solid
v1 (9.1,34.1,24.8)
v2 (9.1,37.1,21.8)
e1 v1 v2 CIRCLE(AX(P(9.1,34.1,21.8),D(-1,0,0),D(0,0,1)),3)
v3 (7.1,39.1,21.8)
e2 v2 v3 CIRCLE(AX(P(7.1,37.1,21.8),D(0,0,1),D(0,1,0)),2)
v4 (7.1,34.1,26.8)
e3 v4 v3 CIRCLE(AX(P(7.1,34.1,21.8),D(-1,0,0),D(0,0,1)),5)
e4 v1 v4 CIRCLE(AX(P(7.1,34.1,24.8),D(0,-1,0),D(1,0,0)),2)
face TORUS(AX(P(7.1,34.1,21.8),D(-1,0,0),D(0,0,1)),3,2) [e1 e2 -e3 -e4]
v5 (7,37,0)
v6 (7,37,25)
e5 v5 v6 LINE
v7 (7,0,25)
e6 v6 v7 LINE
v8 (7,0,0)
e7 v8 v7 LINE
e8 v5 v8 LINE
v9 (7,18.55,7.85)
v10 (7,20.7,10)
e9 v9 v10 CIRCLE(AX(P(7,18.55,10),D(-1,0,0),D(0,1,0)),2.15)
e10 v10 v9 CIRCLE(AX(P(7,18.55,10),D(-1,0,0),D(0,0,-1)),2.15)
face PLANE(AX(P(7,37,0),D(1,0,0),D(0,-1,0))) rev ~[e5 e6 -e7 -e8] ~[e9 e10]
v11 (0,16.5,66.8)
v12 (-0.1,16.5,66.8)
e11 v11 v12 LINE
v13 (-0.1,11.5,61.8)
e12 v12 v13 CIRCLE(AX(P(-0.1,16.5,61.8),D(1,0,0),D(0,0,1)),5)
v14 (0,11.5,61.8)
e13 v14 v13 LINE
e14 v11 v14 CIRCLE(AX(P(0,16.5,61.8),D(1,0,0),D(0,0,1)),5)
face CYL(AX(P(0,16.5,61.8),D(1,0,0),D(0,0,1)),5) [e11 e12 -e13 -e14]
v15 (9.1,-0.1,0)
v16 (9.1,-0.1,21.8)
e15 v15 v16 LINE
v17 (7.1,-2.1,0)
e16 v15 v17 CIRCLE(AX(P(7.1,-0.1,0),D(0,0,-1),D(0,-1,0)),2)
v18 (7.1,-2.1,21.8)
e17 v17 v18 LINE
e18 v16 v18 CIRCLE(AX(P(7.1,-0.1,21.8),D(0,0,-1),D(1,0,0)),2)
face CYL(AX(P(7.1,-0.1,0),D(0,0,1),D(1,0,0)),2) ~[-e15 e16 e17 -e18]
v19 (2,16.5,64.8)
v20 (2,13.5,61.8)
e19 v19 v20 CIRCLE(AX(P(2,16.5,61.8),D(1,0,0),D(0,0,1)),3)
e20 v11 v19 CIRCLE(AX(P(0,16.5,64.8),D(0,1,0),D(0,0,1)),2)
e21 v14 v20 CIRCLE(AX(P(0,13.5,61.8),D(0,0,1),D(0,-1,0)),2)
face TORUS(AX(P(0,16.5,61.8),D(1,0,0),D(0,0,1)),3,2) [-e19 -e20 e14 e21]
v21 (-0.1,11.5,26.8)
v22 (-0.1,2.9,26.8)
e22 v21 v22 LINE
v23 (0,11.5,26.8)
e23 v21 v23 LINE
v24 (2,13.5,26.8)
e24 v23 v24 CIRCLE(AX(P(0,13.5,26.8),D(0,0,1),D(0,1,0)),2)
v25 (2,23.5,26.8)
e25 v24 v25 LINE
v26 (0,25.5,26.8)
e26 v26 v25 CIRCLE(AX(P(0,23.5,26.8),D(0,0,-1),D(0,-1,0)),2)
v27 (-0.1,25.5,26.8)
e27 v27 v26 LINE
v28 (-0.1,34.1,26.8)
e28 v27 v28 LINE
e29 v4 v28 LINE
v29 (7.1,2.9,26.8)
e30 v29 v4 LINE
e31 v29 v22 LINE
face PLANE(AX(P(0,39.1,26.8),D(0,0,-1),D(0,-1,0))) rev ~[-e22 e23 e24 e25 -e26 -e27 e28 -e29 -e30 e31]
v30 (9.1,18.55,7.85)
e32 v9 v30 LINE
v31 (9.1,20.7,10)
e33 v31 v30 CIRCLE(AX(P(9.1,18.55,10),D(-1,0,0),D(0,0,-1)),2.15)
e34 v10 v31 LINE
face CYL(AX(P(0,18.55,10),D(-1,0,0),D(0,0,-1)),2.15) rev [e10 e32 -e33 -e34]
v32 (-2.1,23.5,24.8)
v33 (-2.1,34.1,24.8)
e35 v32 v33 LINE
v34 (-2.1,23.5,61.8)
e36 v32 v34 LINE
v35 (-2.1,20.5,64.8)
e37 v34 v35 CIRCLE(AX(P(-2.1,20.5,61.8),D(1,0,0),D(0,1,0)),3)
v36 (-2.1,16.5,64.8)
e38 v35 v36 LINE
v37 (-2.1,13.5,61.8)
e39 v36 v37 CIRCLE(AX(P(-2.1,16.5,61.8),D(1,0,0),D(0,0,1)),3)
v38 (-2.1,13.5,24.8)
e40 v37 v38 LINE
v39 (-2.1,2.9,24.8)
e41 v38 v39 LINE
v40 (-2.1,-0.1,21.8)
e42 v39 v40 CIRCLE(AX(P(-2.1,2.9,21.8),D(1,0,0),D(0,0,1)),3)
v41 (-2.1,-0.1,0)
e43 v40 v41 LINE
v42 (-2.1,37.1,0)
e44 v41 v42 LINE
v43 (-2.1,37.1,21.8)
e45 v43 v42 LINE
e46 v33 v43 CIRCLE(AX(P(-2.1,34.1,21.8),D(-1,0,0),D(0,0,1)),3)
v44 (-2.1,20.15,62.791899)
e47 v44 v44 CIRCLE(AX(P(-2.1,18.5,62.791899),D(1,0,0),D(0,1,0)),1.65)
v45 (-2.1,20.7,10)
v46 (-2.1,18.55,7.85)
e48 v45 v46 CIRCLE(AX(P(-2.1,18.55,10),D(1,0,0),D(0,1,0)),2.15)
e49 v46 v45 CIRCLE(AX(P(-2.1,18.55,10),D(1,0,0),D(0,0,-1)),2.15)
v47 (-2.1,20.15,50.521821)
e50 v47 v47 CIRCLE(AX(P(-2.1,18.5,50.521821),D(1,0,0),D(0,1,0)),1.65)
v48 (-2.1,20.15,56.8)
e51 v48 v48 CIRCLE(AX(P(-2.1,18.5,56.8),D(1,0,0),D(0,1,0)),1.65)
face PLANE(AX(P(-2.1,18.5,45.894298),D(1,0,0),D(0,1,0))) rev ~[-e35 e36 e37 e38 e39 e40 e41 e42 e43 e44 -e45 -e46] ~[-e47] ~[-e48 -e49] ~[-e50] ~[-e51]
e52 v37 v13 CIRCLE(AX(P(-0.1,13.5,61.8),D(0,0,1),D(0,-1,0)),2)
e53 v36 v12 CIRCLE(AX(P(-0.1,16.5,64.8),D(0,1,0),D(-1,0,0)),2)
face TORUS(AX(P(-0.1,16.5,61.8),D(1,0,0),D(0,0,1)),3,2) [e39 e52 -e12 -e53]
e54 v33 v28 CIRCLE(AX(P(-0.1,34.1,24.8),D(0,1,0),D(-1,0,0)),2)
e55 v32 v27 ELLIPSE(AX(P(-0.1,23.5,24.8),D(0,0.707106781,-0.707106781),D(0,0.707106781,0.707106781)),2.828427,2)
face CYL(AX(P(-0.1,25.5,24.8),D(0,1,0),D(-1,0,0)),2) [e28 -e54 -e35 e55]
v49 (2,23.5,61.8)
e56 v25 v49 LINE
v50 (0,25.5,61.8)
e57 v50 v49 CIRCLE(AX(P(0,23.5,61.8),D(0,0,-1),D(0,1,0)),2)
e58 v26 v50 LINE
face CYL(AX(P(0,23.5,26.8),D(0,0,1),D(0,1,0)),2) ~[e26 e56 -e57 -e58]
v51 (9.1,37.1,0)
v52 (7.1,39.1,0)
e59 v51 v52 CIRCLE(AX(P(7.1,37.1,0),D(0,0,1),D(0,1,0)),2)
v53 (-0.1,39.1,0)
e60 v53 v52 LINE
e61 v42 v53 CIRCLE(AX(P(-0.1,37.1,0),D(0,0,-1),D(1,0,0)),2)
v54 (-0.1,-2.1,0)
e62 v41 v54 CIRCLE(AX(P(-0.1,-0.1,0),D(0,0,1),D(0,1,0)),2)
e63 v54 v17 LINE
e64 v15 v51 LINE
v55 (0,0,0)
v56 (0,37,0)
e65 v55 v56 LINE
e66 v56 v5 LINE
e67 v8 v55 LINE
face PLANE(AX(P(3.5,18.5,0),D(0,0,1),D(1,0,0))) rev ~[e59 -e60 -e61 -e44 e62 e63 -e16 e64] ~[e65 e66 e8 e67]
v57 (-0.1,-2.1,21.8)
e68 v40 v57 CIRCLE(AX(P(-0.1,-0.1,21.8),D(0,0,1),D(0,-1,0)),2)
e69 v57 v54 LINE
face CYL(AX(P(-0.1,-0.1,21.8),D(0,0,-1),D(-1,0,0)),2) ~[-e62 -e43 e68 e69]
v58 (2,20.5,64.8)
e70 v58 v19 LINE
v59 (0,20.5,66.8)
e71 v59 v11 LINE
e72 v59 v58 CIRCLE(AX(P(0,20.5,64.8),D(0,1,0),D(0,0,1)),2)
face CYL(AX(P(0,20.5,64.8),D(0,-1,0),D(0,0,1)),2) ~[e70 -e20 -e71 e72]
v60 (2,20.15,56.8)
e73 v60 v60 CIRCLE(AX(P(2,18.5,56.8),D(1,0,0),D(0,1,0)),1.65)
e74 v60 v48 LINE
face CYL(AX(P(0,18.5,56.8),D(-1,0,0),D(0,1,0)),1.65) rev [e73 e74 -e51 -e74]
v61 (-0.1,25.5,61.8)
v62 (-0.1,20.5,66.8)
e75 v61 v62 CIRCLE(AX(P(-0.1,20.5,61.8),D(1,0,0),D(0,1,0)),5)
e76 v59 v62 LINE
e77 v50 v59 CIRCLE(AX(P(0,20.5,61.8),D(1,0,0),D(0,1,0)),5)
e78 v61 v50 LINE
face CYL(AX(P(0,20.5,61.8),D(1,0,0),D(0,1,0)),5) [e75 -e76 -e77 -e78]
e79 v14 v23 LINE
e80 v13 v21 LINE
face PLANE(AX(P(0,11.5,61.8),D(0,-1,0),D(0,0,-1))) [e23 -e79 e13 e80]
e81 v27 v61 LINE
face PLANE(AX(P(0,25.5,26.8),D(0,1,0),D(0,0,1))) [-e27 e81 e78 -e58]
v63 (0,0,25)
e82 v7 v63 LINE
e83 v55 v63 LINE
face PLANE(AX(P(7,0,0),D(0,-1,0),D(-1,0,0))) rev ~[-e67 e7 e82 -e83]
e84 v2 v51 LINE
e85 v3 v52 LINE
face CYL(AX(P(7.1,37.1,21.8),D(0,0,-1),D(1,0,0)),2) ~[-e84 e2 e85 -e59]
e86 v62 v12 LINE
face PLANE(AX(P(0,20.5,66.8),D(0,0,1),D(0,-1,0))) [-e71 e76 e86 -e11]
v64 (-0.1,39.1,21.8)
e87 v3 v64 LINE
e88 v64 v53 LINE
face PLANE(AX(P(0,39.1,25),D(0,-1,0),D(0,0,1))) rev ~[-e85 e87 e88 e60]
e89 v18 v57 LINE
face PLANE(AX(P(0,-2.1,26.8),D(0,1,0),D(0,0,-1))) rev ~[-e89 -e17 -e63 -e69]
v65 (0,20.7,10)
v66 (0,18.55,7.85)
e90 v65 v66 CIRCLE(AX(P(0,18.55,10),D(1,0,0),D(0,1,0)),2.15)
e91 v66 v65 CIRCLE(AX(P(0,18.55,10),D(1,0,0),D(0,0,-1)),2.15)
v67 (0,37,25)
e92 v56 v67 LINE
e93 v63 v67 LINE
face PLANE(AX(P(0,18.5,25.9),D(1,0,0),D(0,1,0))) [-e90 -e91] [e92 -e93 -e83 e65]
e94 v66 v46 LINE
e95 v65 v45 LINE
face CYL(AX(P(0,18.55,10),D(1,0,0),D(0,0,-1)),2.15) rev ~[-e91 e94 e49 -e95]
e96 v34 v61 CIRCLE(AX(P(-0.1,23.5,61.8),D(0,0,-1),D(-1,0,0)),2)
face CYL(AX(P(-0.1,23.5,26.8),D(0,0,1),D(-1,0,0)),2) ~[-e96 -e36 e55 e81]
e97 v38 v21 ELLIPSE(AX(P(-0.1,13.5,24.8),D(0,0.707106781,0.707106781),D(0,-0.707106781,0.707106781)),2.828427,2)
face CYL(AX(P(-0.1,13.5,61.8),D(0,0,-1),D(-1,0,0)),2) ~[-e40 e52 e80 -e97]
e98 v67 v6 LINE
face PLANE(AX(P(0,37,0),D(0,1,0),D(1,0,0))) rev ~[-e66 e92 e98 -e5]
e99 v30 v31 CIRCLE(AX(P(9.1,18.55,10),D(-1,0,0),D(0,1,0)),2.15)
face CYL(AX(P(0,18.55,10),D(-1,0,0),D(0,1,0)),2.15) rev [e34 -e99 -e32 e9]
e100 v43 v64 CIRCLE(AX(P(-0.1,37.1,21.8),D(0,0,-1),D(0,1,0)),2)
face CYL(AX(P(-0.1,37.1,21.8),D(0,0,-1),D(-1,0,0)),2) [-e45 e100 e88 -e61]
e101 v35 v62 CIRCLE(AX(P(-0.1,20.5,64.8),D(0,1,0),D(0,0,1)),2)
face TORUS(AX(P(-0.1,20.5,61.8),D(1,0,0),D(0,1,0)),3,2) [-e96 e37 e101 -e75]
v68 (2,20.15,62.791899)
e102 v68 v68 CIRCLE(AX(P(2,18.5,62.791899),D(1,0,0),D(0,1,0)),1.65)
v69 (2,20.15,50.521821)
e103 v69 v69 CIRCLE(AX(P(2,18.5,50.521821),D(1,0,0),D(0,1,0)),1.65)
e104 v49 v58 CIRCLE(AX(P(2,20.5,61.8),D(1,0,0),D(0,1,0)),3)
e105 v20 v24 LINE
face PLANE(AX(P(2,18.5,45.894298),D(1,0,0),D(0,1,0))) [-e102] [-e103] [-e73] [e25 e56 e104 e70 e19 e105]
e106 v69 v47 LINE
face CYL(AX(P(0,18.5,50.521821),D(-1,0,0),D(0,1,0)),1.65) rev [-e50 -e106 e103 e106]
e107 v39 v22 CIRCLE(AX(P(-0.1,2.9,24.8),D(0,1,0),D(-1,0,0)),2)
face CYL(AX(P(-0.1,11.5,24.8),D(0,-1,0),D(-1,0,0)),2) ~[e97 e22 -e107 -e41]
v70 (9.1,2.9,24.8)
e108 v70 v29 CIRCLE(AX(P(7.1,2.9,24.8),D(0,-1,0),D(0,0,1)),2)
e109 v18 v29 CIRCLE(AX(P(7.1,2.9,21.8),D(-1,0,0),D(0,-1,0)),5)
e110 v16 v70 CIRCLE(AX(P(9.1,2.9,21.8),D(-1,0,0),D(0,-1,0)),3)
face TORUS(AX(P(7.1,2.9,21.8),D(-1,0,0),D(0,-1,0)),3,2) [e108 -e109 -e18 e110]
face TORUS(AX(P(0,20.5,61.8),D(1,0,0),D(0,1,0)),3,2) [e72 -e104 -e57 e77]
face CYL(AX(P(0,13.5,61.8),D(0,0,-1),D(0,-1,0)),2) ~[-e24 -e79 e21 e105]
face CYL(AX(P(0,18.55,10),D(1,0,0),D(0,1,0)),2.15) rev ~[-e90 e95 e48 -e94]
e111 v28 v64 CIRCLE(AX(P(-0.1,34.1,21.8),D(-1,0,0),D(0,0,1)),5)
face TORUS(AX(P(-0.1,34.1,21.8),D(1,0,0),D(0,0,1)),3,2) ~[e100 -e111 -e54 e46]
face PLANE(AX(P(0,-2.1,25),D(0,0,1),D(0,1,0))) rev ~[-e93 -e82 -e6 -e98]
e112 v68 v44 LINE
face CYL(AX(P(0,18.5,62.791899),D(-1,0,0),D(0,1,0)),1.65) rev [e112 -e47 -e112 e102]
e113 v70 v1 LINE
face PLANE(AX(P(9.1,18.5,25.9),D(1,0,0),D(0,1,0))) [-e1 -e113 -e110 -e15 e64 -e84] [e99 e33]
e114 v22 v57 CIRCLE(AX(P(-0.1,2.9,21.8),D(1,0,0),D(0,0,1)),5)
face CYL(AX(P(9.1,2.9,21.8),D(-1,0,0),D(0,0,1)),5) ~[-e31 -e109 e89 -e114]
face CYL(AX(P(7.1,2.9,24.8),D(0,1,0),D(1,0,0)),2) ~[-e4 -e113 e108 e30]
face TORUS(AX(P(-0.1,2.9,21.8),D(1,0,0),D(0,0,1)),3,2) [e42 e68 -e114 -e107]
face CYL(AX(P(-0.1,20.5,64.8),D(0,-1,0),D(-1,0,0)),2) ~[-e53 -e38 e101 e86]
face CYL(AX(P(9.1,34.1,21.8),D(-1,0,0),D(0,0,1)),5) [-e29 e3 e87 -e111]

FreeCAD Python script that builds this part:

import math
import FreeCAD as App
import Part
import Sketcher
Q = App.Units.Quantity


def edges_at(feature, points):
    """Names of the edges that pass closest to the given points."""
    edges = feature.Shape.Edges
    near = lambda p: min(range(len(edges)), key=lambda i: edges[i].distToShape(Part.Vertex(*p))[0])
    return sorted({f"Edge{near(p) + 1}" for p in points})


def add_polygon(sketch, points):
    """Adds a closed chain of lines whose ends are joined by coincident constraints."""
    first, n = sketch.GeometryCount, len(points)
    for a, b in zip(points, points[1:] + points[:1]):
        sketch.addGeometry(Part.LineSegment(App.Vector(*a, 0), App.Vector(*b, 0)), False)
    for i in range(n):
        sketch.addConstraint(Sketcher.Constraint("Coincident", first + i, 2, first + (i + 1) % n, 1))

doc = App.newDocument("Part")
body = doc.addObject("PartDesign::Body", "Body")

sketch1 = body.newObject("Sketcher::SketchObject", "Sketch")
sketch1.AttachmentSupport = (doc.getObject("XY_Plane"), [""])
sketch1.MapMode = "FlatFace"
add_polygon(sketch1, [(-2, 39), (-2, -2), (9, -2), (9, 39)])
add_polygon(sketch1, [(7, 37), (7, 0), (0, 0), (0, 37)])
sketch1.addConstraint([
    Sketcher.Constraint("Vertical", 0),
    Sketcher.Constraint("Horizontal", 1),
    Sketcher.Constraint("Vertical", 2),
    Sketcher.Constraint("Horizontal", 3),
    Sketcher.Constraint("Vertical", 4),
    Sketcher.Constraint("Horizontal", 5),
    Sketcher.Constraint("Vertical", 6),
    Sketcher.Constraint("Horizontal", 7),
    Sketcher.Constraint("Coincident", 5, 2, -1, 1),
    Sketcher.Constraint("DistanceX", 5, 2, 5, 1, Q("7 mm")),
    Sketcher.Constraint("DistanceY", 4, 2, 4, 1, Q("37 mm")),
    Sketcher.Constraint("DistanceX", 1, 1, 1, 2, Q("11.2 mm")),
    Sketcher.Constraint("DistanceY", 0, 2, 0, 1, Q("41.2 mm")),
    Sketcher.Constraint("DistanceX", 0, 2, -1, 1, Q("2.1 mm")),
    Sketcher.Constraint("DistanceY", 0, 2, -1, 1, Q("2.1 mm")),
])
pad1 = body.newObject("PartDesign::Pad", "Pad")
pad1.Profile = sketch1
pad1.Length = 25

sketch2 = body.newObject("Sketcher::SketchObject", "Sketch001")
sketch2.AttachmentSupport = (doc.getObject("YZ_Plane"), [""])
sketch2.MapMode = "FlatFace"
add_polygon(sketch2, [(-2.1, 26.8), (-2.1, 25), (39.1, 25), (39.1, 26.8)])
sketch2.addConstraint([
    Sketcher.Constraint("Vertical", 0),
    Sketcher.Constraint("Horizontal", 1),
    Sketcher.Constraint("Vertical", 2),
    Sketcher.Constraint("Horizontal", 3),
    Sketcher.Constraint("DistanceX", 1, 1, 1, 2, Q("41.2 mm")),
    Sketcher.Constraint("DistanceY", 0, 2, 0, 1, Q("1.8 mm")),
    Sketcher.Constraint("DistanceY", -1, 1, 0, 2, Q("25 mm")),
    Sketcher.Constraint("DistanceX", 0, 2, -1, 1, Q("2.1 mm")),
])
pad2 = body.newObject("PartDesign::Pad", "Pad001")
pad2.Profile = sketch2
pad2.Type = "TwoLengths"
pad2.Length = 2.1
pad2.Length2 = 9.1
pad2.Reversed = True

sketch3 = body.newObject("Sketcher::SketchObject", "Sketch002")
sketch3.AttachmentSupport = (doc.getObject("YZ_Plane"), [""])
sketch3.MapMode = "FlatFace"
sketch3.addGeometry([
    Part.LineSegment(App.Vector(11.5, 61.8, 0), App.Vector(11.5, 26.8, 0)),
    Part.LineSegment(App.Vector(11.5, 26.8, 0), App.Vector(25.5, 26.8, 0)),
    Part.LineSegment(App.Vector(25.5, 26.8, 0), App.Vector(25.5, 61.8, 0)),
    Part.ArcOfCircle(Part.Circle(App.Vector(20.5, 61.8, 0), App.Vector(0, 0, 1), 5), math.radians(0), math.radians(90)),
    Part.LineSegment(App.Vector(20.5, 66.8, 0), App.Vector(16.5, 66.8, 0)),
    Part.ArcOfCircle(Part.Circle(App.Vector(16.5, 61.8, 0), App.Vector(0, 0, 1), 5), math.radians(90), math.radians(180)),
    Part.Circle(App.Vector(18.5, 50.5, 0), App.Vector(0, 0, 1), 1.6),
    Part.Circle(App.Vector(18.5, 56.8, 0), App.Vector(0, 0, 1), 1.6),
    Part.Circle(App.Vector(18.5, 62.8, 0), App.Vector(0, 0, 1), 1.6),
], False)
sketch3.addConstraint([
    Sketcher.Constraint("Coincident", 0, 2, 1, 1),
    Sketcher.Constraint("Coincident", 1, 2, 2, 1),
    Sketcher.Constraint("Tangent", 2, 2, 3, 1),
    Sketcher.Constraint("Tangent", 3, 2, 4, 1),
    Sketcher.Constraint("Tangent", 4, 2, 5, 1),
    Sketcher.Constraint("Tangent", 5, 2, 0, 1),
    Sketcher.Constraint("Vertical", 0),
    Sketcher.Constraint("Horizontal", 1),
    Sketcher.Constraint("Vertical", 2),
    Sketcher.Constraint("Horizontal", 4),
    Sketcher.Constraint("Equal", 3, 5),
    Sketcher.Constraint("Equal", 6, 7),
    Sketcher.Constraint("Equal", 7, 8),
    Sketcher.Constraint("Vertical", 6, 3, 7, 3),
    Sketcher.Constraint("Vertical", 7, 3, 8, 3),
    Sketcher.Constraint("Radius", 3, Q("5 mm")),
    Sketcher.Constraint("Diameter", 6, Q("3.3 mm")),
    Sketcher.Constraint("DistanceX", 1, 1, 1, 2, Q("14 mm")),
    Sketcher.Constraint("DistanceY", 0, 2, 0, 1, Q("35 mm")),
    Sketcher.Constraint("DistanceX", 6, 3, 3, 3, Q("2 mm")),
    Sketcher.Constraint("DistanceY", 7, 3, 3, 3, Q("5 mm")),
    Sketcher.Constraint("DistanceX", -1, 1, 3, 3, Q("20.5 mm")),
    Sketcher.Constraint("DistanceY", -1, 1, 3, 3, Q("61.8 mm")),
    Sketcher.Constraint("DistanceY", -1, 1, 8, 3, Q("62.791899 mm")),
    Sketcher.Constraint("DistanceY", -1, 1, 6, 3, Q("50.521821 mm")),
])
pad3 = body.newObject("PartDesign::Pad", "Pad002")
pad3.Profile = sketch3
pad3.Type = "TwoLengths"
pad3.Length = 2
pad3.Length2 = 2.1
doc.recompute()

fillet = body.newObject("PartDesign::Fillet", "Fillet")
fillet.Base = (pad3, edges_at(pad3, [(3.5, -2.1, 26.8), (3.5, 39.1, 26.8)]))
fillet.Radius = 5
doc.recompute()

fillet2 = body.newObject("PartDesign::Fillet", "Fillet001")
fillet2.Base = (fillet, edges_at(fillet, [
    (-2.1, -2.1, 10.9),
    (-2.1, 39.1, 10.9),
    (9.1, -2.1, 10.9),
    (-2.1, 11.5, 44.3),
    (2, 11.5, 44.3),
]))
fillet2.Radius = 2

sketch4 = body.newObject("Sketcher::SketchObject", "Sketch003")
sketch4.AttachmentSupport = (doc.getObject("YZ_Plane"), [""])
sketch4.MapMode = "FlatFace"
sketch4.addGeometry([
    Part.ArcOfCircle(Part.Circle(App.Vector(18.6, 10, 0), App.Vector(0, 0, 1), 2.1), math.radians(-90), math.radians(0)),
    Part.ArcOfCircle(Part.Circle(App.Vector(18.6, 10, 0), App.Vector(0, 0, 1), 2.1), math.radians(0), math.radians(270)),
], False)
sketch4.addConstraint([
    Sketcher.Constraint("Tangent", 0, 1, 1, 2),
    Sketcher.Constraint("Coincident", 1, 1, 0, 2),
    Sketcher.Constraint("Horizontal", 0, 3, 1, 1),
    Sketcher.Constraint("Vertical", 1, 3, 0, 1),
    Sketcher.Constraint("Radius", 0, Q("2.15 mm")),
    Sketcher.Constraint("DistanceY", -1, 1, 0, 3, Q("10 mm")),
    Sketcher.Constraint("DistanceX", -1, 1, 1, 1, Q("20.7 mm")),
])
pocket1 = body.newObject("PartDesign::Pocket", "Pocket")
pocket1.Profile = sketch4
pocket1.Type = "ThroughAll"
pocket1.Midplane = True

doc.recompute()
